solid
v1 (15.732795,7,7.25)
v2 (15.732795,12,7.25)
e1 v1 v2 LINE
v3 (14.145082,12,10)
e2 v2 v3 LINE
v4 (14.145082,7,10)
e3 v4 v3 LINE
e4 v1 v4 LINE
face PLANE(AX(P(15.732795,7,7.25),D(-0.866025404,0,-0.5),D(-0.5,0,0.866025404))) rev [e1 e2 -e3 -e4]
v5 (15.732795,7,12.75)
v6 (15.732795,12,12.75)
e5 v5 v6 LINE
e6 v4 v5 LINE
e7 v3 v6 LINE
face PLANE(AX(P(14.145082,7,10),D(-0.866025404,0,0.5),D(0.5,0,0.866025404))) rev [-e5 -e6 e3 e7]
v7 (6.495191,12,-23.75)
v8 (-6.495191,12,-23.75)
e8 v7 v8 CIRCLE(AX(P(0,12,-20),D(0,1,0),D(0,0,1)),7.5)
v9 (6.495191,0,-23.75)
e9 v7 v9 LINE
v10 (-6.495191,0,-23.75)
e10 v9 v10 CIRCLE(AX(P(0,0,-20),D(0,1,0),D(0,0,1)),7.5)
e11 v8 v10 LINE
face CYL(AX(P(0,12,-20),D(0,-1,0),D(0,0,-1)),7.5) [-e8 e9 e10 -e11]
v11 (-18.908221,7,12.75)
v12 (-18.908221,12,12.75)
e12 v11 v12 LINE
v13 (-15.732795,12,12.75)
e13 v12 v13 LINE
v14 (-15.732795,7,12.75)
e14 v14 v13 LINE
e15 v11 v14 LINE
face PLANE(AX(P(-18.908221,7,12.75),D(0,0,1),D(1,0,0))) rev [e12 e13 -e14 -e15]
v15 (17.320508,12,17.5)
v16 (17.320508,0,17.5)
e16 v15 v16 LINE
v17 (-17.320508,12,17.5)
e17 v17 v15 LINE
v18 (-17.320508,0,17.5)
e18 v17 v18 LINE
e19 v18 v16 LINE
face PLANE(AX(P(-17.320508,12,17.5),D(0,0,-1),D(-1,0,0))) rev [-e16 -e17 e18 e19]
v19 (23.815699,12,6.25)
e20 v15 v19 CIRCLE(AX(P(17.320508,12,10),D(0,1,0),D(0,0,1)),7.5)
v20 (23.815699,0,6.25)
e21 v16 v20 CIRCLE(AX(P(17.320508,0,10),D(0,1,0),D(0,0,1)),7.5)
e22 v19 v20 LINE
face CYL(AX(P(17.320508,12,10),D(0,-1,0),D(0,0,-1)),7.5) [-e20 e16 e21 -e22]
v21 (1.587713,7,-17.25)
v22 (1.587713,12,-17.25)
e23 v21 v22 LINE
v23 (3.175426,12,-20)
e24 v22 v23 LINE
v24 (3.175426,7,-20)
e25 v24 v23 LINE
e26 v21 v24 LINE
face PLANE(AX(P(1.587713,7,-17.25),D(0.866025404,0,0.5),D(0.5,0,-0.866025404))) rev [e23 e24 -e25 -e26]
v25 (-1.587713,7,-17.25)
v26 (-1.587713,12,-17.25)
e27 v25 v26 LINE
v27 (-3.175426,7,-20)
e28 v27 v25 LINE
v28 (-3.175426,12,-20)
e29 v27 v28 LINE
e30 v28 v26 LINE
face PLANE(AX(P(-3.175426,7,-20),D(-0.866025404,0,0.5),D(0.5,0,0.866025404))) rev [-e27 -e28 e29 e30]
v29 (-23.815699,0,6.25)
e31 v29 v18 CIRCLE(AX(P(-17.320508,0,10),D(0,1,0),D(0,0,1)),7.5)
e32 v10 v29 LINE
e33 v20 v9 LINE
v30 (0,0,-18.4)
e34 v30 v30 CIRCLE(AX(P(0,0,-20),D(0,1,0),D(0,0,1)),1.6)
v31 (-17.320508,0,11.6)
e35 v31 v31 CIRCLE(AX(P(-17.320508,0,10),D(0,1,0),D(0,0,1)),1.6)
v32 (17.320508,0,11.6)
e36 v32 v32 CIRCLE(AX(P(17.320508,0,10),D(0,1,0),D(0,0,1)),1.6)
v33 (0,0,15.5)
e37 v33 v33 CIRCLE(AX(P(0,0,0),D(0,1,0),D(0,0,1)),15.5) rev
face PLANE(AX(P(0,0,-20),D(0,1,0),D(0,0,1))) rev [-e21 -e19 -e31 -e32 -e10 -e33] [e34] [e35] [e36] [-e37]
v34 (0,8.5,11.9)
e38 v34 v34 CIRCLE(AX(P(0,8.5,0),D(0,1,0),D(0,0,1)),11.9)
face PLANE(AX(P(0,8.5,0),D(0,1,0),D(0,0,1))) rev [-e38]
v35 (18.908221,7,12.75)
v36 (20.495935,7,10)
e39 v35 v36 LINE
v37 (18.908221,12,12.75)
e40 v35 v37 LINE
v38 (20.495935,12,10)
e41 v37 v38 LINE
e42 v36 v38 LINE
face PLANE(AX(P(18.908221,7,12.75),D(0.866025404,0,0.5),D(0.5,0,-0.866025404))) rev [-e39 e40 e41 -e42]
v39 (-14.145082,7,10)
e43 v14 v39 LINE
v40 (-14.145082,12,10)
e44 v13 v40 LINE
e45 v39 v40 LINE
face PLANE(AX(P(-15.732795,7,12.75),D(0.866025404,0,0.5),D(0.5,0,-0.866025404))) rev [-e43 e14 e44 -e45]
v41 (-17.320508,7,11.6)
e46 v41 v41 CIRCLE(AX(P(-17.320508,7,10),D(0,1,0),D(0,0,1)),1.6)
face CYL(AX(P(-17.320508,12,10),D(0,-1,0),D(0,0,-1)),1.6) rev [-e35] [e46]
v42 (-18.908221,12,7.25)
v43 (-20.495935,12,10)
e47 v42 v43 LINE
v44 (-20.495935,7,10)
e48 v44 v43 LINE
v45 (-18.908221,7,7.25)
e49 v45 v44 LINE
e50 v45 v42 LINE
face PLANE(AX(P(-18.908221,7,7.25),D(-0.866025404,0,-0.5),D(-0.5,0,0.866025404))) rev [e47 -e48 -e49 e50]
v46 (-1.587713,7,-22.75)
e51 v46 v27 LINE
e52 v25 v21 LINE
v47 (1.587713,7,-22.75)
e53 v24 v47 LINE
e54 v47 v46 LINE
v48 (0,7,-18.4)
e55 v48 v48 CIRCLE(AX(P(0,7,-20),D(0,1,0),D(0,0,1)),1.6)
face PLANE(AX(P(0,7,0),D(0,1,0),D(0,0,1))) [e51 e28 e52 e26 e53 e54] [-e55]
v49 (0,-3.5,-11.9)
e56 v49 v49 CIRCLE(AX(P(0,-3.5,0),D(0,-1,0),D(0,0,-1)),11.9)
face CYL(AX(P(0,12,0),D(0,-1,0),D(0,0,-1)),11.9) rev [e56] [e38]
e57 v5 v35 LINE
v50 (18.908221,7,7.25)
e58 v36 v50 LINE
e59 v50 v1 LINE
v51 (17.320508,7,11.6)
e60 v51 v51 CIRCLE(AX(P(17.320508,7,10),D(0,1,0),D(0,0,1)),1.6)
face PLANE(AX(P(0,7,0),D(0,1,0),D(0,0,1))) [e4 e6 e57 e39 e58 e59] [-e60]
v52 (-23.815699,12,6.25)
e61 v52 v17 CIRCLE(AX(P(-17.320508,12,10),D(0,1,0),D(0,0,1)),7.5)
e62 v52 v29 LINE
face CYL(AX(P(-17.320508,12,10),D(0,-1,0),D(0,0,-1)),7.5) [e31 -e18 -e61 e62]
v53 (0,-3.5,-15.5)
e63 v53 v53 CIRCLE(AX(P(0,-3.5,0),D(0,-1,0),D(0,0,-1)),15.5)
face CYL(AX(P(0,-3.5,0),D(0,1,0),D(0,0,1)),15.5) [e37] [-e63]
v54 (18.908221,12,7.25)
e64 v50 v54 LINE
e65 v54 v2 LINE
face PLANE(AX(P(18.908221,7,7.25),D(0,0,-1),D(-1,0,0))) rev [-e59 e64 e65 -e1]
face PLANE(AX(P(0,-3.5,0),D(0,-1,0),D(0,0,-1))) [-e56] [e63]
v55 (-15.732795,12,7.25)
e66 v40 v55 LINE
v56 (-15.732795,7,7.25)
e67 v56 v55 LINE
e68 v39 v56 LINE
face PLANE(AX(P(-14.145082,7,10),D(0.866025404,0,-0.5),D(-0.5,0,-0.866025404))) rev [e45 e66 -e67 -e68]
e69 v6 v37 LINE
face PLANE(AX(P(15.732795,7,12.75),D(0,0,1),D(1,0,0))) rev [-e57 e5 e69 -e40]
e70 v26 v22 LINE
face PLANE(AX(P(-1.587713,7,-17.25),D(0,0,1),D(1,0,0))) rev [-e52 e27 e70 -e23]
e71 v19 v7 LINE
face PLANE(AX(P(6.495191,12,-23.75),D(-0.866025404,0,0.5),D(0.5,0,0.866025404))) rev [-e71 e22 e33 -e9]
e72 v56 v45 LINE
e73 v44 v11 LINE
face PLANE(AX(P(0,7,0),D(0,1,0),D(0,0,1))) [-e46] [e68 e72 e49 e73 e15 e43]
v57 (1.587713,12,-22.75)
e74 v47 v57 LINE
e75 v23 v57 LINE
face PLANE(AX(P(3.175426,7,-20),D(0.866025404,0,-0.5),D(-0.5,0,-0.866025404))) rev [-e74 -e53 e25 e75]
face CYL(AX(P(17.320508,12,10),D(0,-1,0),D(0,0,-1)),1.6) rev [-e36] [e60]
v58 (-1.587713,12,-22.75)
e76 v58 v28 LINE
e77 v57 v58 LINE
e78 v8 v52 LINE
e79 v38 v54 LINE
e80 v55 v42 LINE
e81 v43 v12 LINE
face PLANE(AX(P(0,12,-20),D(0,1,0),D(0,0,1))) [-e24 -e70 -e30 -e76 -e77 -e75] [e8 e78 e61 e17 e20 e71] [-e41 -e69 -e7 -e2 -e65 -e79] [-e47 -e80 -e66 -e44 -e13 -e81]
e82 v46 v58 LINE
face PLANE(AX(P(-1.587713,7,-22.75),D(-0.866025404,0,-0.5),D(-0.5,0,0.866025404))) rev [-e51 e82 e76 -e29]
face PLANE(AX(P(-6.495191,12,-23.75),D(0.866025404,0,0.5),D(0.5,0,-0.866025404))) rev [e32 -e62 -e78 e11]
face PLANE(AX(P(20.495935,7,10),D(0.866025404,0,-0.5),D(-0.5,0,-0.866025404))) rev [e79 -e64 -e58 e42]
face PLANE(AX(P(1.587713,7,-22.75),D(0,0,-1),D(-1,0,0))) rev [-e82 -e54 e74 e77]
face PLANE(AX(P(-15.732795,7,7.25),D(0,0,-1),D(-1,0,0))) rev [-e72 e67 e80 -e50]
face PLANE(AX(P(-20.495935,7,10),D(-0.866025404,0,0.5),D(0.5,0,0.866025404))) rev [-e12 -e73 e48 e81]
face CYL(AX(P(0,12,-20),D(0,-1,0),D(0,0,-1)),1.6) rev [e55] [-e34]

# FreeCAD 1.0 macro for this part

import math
import FreeCAD as App
import Part
import Sketcher
from FreeCAD import Vector
Q = App.Units.Quantity

doc = App.newDocument("Part")
params = doc.addObject("Spreadsheet::Sheet", "Params")
for row, (alias, value) in enumerate([
    ("sketch1_diameter", "3.2 mm"),
    ("sketch1_diameter2", "23.8 mm"),
    ("sketch1_radius", "7.5 mm"),
    ("pad1_length", "12 mm"),
    ("pocket1_length", "5 mm"),
    ("sketch3_diameter", "23.8 mm"),
    ("pad2_length", "3.5 mm"),
    ("sketch4_diameter", "31 mm"),
    ("sketch4_diameter2", "23.8 mm"),
    ("pad3_length", "3.5 mm"),
], start=1):
    params.set(f"A{row}", alias)
    params.set(f"B{row}", "=" + value)
    params.setAlias(f"B{row}", alias)

body = doc.addObject("PartDesign::Body", "Body")

# Sketch on XZ plane
sketch1 = body.newObject("Sketcher::SketchObject", "Sketch")
sketch1.AttachmentSupport = (doc.getObject("XZ_Plane"), [""])
sketch1.MapMode = "FlatFace"
sketch1.addGeometry(Part.LineSegment(Vector(-6.5, -23.8, 0), Vector(-23.8, 6.2, 0)), False)
sketch1.addGeometry(Part.ArcOfCircle(Part.Circle(Vector(-17.3, 10, 0), Vector(0, 0, 1), 7.5), math.radians(90), math.radians(210)), False)
sketch1.addGeometry(Part.LineSegment(Vector(-17.3, 17.5, 0), Vector(17.3, 17.5, 0)), False)
sketch1.addGeometry(Part.ArcOfCircle(Part.Circle(Vector(17.3, 10, 0), Vector(0, 0, 1), 7.5), math.radians(-30), math.radians(90)), False)
sketch1.addGeometry(Part.LineSegment(Vector(23.8, 6.2, 0), Vector(6.5, -23.8, 0)), False)
sketch1.addGeometry(Part.ArcOfCircle(Part.Circle(Vector(0, -20, 0), Vector(0, 0, 1), 7.5), math.radians(-150), math.radians(-30)), False)
sketch1.addGeometry(Part.Circle(Vector(-17.3, 10, 0), Vector(0, 0, 1), 1.6), False)
sketch1.addGeometry(Part.Circle(Vector(17.3, 10, 0), Vector(0, 0, 1), 1.6), False)
sketch1.addGeometry(Part.Circle(Vector(0, 0, 0), Vector(0, 0, 1), 11.9), False)
sketch1.addGeometry(Part.Circle(Vector(0, -20, 0), Vector(0, 0, 1), 1.6), False)
sketch1.addConstraint(Sketcher.Constraint("Tangent", 0, 2, 1, 2))
sketch1.addConstraint(Sketcher.Constraint("Tangent", 1, 1, 2, 1))
sketch1.addConstraint(Sketcher.Constraint("Tangent", 2, 2, 3, 2))
sketch1.addConstraint(Sketcher.Constraint("Tangent", 3, 1, 4, 1))
sketch1.addConstraint(Sketcher.Constraint("Tangent", 4, 2, 5, 2))
sketch1.addConstraint(Sketcher.Constraint("Tangent", 5, 1, 0, 1))
sketch1.addConstraint(Sketcher.Constraint("Horizontal", 2))
sketch1.addConstraint(Sketcher.Constraint("Coincident", 8, 3, -1, 1))
sketch1.addConstraint(Sketcher.Constraint("Coincident", 6, 3, 1, 3))
sketch1.addConstraint(Sketcher.Constraint("Coincident", 7, 3, 3, 3))
sketch1.addConstraint(Sketcher.Constraint("Coincident", 9, 3, 5, 3))
sketch1.addConstraint(Sketcher.Constraint("Equal", 1, 3))
sketch1.addConstraint(Sketcher.Constraint("Equal", 3, 5))
sketch1.addConstraint(Sketcher.Constraint("Equal", 6, 7))
sketch1.addConstraint(Sketcher.Constraint("Equal", 7, 9))
sketch1.addConstraint(Sketcher.Constraint("Symmetric", 0, 2, 3, 1, -2))
sketch1.addConstraint(Sketcher.Constraint("Diameter", 6, 3.2))
sketch1.addConstraint(Sketcher.Constraint("Diameter", 8, 23.8))
sketch1.addConstraint(Sketcher.Constraint("Radius", 1, 7.5))
sketch1.addConstraint(Sketcher.Constraint("Angle", 0, Q("120 deg")))
sketch1.addConstraint(Sketcher.Constraint("DistanceY", -1, 1, 1, 3, 10.0))
sketch1.addConstraint(Sketcher.Constraint("DistanceY", 5, 3, -1, 1, 20.0))
sketch1.setExpression("Constraints[16]", "Params.sketch1_diameter")
sketch1.setExpression("Constraints[17]", "Params.sketch1_diameter2")
sketch1.setExpression("Constraints[18]", "Params.sketch1_radius")
pad1 = body.newObject("PartDesign::Pad", "Pad")
pad1.Profile = sketch1
pad1.setExpression("Length", "Params.pad1_length")
pad1.Reversed = True

# Sketch on XZ plane
sketch2 = body.newObject("Sketcher::SketchObject", "Sketch001")
sketch2.AttachmentSupport = (doc.getObject("XZ_Plane"), [""])
sketch2.MapMode = "FlatFace"
sketch2.AttachmentOffset = App.Placement(Vector(0, 0, -12), App.Rotation())
sketch2.addGeometry(Part.LineSegment(Vector(-18.9, 7.2, 0), Vector(-20.5, 10, 0)), False)
sketch2.addGeometry(Part.LineSegment(Vector(-20.5, 10, 0), Vector(-18.9, 12.8, 0)), False)
sketch2.addGeometry(Part.LineSegment(Vector(-18.9, 12.8, 0), Vector(-15.7, 12.8, 0)), False)
sketch2.addGeometry(Part.LineSegment(Vector(-15.7, 12.8, 0), Vector(-14.1, 10, 0)), False)
sketch2.addGeometry(Part.LineSegment(Vector(-14.1, 10, 0), Vector(-15.7, 7.2, 0)), False)
sketch2.addGeometry(Part.LineSegment(Vector(-15.7, 7.2, 0), Vector(-18.9, 7.2, 0)), False)
sketch2.addGeometry(Part.LineSegment(Vector(-1.6, -22.8, 0), Vector(-3.2, -20, 0)), False)
sketch2.addGeometry(Part.LineSegment(Vector(-3.2, -20, 0), Vector(-1.6, -17.2, 0)), False)
sketch2.addGeometry(Part.LineSegment(Vector(-1.6, -17.2, 0), Vector(1.6, -17.2, 0)), False)
sketch2.addGeometry(Part.LineSegment(Vector(1.6, -17.2, 0), Vector(3.2, -20, 0)), False)
sketch2.addGeometry(Part.LineSegment(Vector(3.2, -20, 0), Vector(1.6, -22.8, 0)), False)
sketch2.addGeometry(Part.LineSegment(Vector(1.6, -22.8, 0), Vector(-1.6, -22.8, 0)), False)
sketch2.addGeometry(Part.LineSegment(Vector(18.9, 7.2, 0), Vector(15.7, 7.2, 0)), False)
sketch2.addGeometry(Part.LineSegment(Vector(15.7, 7.2, 0), Vector(14.1, 10, 0)), False)
sketch2.addGeometry(Part.LineSegment(Vector(14.1, 10, 0), Vector(15.7, 12.8, 0)), False)
sketch2.addGeometry(Part.LineSegment(Vector(15.7, 12.8, 0), Vector(18.9, 12.8, 0)), False)
sketch2.addGeometry(Part.LineSegment(Vector(18.9, 12.8, 0), Vector(20.5, 10, 0)), False)
sketch2.addGeometry(Part.LineSegment(Vector(20.5, 10, 0), Vector(18.9, 7.2, 0)), False)
sketch2.addConstraint(Sketcher.Constraint("Coincident", 0, 2, 1, 1))
sketch2.addConstraint(Sketcher.Constraint("Coincident", 1, 2, 2, 1))
sketch2.addConstraint(Sketcher.Constraint("Coincident", 2, 2, 3, 1))
sketch2.addConstraint(Sketcher.Constraint("Coincident", 3, 2, 4, 1))
sketch2.addConstraint(Sketcher.Constraint("Coincident", 4, 2, 5, 1))
sketch2.addConstraint(Sketcher.Constraint("Coincident", 5, 2, 0, 1))
sketch2.addConstraint(Sketcher.Constraint("Coincident", 6, 2, 7, 1))
sketch2.addConstraint(Sketcher.Constraint("Coincident", 7, 2, 8, 1))
sketch2.addConstraint(Sketcher.Constraint("Coincident", 8, 2, 9, 1))
sketch2.addConstraint(Sketcher.Constraint("Coincident", 9, 2, 10, 1))
sketch2.addConstraint(Sketcher.Constraint("Coincident", 10, 2, 11, 1))
sketch2.addConstraint(Sketcher.Constraint("Coincident", 11, 2, 6, 1))
sketch2.addConstraint(Sketcher.Constraint("Coincident", 12, 2, 13, 1))
sketch2.addConstraint(Sketcher.Constraint("Coincident", 13, 2, 14, 1))
sketch2.addConstraint(Sketcher.Constraint("Coincident", 14, 2, 15, 1))
sketch2.addConstraint(Sketcher.Constraint("Coincident", 15, 2, 16, 1))
sketch2.addConstraint(Sketcher.Constraint("Coincident", 16, 2, 17, 1))
sketch2.addConstraint(Sketcher.Constraint("Coincident", 17, 2, 12, 1))
sketch2.addConstraint(Sketcher.Constraint("Horizontal", 2))
sketch2.addConstraint(Sketcher.Constraint("Horizontal", 5))
sketch2.addConstraint(Sketcher.Constraint("Horizontal", 8))
sketch2.addConstraint(Sketcher.Constraint("Horizontal", 11))
sketch2.addConstraint(Sketcher.Constraint("Horizontal", 12))
sketch2.addConstraint(Sketcher.Constraint("Horizontal", 15))
sketch2.addConstraint(Sketcher.Constraint("Symmetric", 6, 2, 9, 2, -2))
sketch2.addConstraint(Sketcher.Constraint("Symmetric", 4, 2, 12, 2, -2))
sketch2.addConstraint(Sketcher.Constraint("Symmetric", 3, 2, 13, 2, -2))
sketch2.addConstraint(Sketcher.Constraint("Symmetric", 2, 2, 14, 2, -2))
sketch2.addConstraint(Sketcher.Constraint("Symmetric", 0, 2, 16, 2, -2))
sketch2.addConstraint(Sketcher.Constraint("Parallel", 0, 3))
sketch2.addConstraint(Sketcher.Constraint("Parallel", 1, 4))
sketch2.addConstraint(Sketcher.Constraint("Parallel", 3, 6))
sketch2.addConstraint(Sketcher.Constraint("Parallel", 4, 7))
sketch2.addConstraint(Sketcher.Constraint("Parallel", 6, 9))
sketch2.addConstraint(Sketcher.Constraint("Parallel", 7, 10))
sketch2.addConstraint(Sketcher.Constraint("Parallel", 9, 13))
sketch2.addConstraint(Sketcher.Constraint("Parallel", 13, 16))
sketch2.addConstraint(Sketcher.Constraint("Parallel", 14, 17))
sketch2.addConstraint(Sketcher.Constraint("Horizontal", 0, 2, 3, 2))
sketch2.addConstraint(Sketcher.Constraint("Vertical", 2, 2, 4, 2))
sketch2.addConstraint(Sketcher.Constraint("Vertical", 8, 2, 10, 2))
sketch2.addConstraint(Sketcher.Constraint("Equal", 5, 8))
sketch2.addConstraint(Sketcher.Constraint("Equal", 4, 6))
sketch2.addConstraint(Sketcher.Constraint("Angle", 0, Q("120 deg")))
sketch2.addConstraint(Sketcher.Constraint("DistanceY", -1, 1, 0, 2, 10.0))
sketch2.addConstraint(Sketcher.Constraint("DistanceY", 6, 2, -1, 1, 20.0))
sketch2.addConstraint(Sketcher.Constraint("DistanceY", 4, 2, 2, 2, 5.5))
sketch2.addConstraint(Sketcher.Constraint("DistanceX", 2, 1, 2, 2, 3.175426))
sketch2.addConstraint(Sketcher.Constraint("DistanceX", 1, 2, -1, 1, 18.908221))
pocket1 = body.newObject("PartDesign::Pocket", "Pocket")
pocket1.Profile = sketch2
pocket1.setExpression("Length", "Params.pocket1_length")
pocket1.Reversed = True

# Sketch on XZ plane
sketch3 = body.newObject("Sketcher::SketchObject", "Sketch002")
sketch3.AttachmentSupport = (doc.getObject("XZ_Plane"), [""])
sketch3.MapMode = "FlatFace"
sketch3.AttachmentOffset = App.Placement(Vector(0, 0, -8.5), App.Rotation())
sketch3.addGeometry(Part.Circle(Vector(0, 0, 0), Vector(0, 0, 1), 12), False)
sketch3.addConstraint(Sketcher.Constraint("Coincident", 0, 3, -1, 1))
sketch3.addConstraint(Sketcher.Constraint("Diameter", 0, 23.8))
sketch3.setExpression("Constraints[1]", "Params.sketch3_diameter")
pad2 = body.newObject("PartDesign::Pad", "Pad001")
pad2.Profile = sketch3
pad2.setExpression("Length", "Params.pad2_length")
pad2.Reversed = True

# Sketch on XZ plane
sketch4 = body.newObject("Sketcher::SketchObject", "Sketch003")
sketch4.AttachmentSupport = (doc.getObject("XZ_Plane"), [""])
sketch4.MapMode = "FlatFace"
sketch4.AttachmentOffset = App.Placement(Vector(0, 0, 3.5), App.Rotation())
sketch4.addGeometry(Part.Circle(Vector(0, 0, 0), Vector(0, 0, 1), 16), False)
sketch4.addGeometry(Part.Circle(Vector(0, 0, 0), Vector(0, 0, 1), 12), False)
sketch4.addConstraint(Sketcher.Constraint("Coincident", 0, 3, -1, 1))
sketch4.addConstraint(Sketcher.Constraint("Coincident", 1, 3, -1, 1))
sketch4.addConstraint(Sketcher.Constraint("Diameter", 0, 31.0))
sketch4.addConstraint(Sketcher.Constraint("Diameter", 1, 23.8))
sketch4.setExpression("Constraints[2]", "Params.sketch4_diameter")
sketch4.setExpression("Constraints[3]", "Params.sketch4_diameter2")
pad3 = body.newObject("PartDesign::Pad", "Pad002")
pad3.Profile = sketch4
pad3.setExpression("Length", "Params.pad3_length")
pad3.Reversed = True

doc.recompute()
